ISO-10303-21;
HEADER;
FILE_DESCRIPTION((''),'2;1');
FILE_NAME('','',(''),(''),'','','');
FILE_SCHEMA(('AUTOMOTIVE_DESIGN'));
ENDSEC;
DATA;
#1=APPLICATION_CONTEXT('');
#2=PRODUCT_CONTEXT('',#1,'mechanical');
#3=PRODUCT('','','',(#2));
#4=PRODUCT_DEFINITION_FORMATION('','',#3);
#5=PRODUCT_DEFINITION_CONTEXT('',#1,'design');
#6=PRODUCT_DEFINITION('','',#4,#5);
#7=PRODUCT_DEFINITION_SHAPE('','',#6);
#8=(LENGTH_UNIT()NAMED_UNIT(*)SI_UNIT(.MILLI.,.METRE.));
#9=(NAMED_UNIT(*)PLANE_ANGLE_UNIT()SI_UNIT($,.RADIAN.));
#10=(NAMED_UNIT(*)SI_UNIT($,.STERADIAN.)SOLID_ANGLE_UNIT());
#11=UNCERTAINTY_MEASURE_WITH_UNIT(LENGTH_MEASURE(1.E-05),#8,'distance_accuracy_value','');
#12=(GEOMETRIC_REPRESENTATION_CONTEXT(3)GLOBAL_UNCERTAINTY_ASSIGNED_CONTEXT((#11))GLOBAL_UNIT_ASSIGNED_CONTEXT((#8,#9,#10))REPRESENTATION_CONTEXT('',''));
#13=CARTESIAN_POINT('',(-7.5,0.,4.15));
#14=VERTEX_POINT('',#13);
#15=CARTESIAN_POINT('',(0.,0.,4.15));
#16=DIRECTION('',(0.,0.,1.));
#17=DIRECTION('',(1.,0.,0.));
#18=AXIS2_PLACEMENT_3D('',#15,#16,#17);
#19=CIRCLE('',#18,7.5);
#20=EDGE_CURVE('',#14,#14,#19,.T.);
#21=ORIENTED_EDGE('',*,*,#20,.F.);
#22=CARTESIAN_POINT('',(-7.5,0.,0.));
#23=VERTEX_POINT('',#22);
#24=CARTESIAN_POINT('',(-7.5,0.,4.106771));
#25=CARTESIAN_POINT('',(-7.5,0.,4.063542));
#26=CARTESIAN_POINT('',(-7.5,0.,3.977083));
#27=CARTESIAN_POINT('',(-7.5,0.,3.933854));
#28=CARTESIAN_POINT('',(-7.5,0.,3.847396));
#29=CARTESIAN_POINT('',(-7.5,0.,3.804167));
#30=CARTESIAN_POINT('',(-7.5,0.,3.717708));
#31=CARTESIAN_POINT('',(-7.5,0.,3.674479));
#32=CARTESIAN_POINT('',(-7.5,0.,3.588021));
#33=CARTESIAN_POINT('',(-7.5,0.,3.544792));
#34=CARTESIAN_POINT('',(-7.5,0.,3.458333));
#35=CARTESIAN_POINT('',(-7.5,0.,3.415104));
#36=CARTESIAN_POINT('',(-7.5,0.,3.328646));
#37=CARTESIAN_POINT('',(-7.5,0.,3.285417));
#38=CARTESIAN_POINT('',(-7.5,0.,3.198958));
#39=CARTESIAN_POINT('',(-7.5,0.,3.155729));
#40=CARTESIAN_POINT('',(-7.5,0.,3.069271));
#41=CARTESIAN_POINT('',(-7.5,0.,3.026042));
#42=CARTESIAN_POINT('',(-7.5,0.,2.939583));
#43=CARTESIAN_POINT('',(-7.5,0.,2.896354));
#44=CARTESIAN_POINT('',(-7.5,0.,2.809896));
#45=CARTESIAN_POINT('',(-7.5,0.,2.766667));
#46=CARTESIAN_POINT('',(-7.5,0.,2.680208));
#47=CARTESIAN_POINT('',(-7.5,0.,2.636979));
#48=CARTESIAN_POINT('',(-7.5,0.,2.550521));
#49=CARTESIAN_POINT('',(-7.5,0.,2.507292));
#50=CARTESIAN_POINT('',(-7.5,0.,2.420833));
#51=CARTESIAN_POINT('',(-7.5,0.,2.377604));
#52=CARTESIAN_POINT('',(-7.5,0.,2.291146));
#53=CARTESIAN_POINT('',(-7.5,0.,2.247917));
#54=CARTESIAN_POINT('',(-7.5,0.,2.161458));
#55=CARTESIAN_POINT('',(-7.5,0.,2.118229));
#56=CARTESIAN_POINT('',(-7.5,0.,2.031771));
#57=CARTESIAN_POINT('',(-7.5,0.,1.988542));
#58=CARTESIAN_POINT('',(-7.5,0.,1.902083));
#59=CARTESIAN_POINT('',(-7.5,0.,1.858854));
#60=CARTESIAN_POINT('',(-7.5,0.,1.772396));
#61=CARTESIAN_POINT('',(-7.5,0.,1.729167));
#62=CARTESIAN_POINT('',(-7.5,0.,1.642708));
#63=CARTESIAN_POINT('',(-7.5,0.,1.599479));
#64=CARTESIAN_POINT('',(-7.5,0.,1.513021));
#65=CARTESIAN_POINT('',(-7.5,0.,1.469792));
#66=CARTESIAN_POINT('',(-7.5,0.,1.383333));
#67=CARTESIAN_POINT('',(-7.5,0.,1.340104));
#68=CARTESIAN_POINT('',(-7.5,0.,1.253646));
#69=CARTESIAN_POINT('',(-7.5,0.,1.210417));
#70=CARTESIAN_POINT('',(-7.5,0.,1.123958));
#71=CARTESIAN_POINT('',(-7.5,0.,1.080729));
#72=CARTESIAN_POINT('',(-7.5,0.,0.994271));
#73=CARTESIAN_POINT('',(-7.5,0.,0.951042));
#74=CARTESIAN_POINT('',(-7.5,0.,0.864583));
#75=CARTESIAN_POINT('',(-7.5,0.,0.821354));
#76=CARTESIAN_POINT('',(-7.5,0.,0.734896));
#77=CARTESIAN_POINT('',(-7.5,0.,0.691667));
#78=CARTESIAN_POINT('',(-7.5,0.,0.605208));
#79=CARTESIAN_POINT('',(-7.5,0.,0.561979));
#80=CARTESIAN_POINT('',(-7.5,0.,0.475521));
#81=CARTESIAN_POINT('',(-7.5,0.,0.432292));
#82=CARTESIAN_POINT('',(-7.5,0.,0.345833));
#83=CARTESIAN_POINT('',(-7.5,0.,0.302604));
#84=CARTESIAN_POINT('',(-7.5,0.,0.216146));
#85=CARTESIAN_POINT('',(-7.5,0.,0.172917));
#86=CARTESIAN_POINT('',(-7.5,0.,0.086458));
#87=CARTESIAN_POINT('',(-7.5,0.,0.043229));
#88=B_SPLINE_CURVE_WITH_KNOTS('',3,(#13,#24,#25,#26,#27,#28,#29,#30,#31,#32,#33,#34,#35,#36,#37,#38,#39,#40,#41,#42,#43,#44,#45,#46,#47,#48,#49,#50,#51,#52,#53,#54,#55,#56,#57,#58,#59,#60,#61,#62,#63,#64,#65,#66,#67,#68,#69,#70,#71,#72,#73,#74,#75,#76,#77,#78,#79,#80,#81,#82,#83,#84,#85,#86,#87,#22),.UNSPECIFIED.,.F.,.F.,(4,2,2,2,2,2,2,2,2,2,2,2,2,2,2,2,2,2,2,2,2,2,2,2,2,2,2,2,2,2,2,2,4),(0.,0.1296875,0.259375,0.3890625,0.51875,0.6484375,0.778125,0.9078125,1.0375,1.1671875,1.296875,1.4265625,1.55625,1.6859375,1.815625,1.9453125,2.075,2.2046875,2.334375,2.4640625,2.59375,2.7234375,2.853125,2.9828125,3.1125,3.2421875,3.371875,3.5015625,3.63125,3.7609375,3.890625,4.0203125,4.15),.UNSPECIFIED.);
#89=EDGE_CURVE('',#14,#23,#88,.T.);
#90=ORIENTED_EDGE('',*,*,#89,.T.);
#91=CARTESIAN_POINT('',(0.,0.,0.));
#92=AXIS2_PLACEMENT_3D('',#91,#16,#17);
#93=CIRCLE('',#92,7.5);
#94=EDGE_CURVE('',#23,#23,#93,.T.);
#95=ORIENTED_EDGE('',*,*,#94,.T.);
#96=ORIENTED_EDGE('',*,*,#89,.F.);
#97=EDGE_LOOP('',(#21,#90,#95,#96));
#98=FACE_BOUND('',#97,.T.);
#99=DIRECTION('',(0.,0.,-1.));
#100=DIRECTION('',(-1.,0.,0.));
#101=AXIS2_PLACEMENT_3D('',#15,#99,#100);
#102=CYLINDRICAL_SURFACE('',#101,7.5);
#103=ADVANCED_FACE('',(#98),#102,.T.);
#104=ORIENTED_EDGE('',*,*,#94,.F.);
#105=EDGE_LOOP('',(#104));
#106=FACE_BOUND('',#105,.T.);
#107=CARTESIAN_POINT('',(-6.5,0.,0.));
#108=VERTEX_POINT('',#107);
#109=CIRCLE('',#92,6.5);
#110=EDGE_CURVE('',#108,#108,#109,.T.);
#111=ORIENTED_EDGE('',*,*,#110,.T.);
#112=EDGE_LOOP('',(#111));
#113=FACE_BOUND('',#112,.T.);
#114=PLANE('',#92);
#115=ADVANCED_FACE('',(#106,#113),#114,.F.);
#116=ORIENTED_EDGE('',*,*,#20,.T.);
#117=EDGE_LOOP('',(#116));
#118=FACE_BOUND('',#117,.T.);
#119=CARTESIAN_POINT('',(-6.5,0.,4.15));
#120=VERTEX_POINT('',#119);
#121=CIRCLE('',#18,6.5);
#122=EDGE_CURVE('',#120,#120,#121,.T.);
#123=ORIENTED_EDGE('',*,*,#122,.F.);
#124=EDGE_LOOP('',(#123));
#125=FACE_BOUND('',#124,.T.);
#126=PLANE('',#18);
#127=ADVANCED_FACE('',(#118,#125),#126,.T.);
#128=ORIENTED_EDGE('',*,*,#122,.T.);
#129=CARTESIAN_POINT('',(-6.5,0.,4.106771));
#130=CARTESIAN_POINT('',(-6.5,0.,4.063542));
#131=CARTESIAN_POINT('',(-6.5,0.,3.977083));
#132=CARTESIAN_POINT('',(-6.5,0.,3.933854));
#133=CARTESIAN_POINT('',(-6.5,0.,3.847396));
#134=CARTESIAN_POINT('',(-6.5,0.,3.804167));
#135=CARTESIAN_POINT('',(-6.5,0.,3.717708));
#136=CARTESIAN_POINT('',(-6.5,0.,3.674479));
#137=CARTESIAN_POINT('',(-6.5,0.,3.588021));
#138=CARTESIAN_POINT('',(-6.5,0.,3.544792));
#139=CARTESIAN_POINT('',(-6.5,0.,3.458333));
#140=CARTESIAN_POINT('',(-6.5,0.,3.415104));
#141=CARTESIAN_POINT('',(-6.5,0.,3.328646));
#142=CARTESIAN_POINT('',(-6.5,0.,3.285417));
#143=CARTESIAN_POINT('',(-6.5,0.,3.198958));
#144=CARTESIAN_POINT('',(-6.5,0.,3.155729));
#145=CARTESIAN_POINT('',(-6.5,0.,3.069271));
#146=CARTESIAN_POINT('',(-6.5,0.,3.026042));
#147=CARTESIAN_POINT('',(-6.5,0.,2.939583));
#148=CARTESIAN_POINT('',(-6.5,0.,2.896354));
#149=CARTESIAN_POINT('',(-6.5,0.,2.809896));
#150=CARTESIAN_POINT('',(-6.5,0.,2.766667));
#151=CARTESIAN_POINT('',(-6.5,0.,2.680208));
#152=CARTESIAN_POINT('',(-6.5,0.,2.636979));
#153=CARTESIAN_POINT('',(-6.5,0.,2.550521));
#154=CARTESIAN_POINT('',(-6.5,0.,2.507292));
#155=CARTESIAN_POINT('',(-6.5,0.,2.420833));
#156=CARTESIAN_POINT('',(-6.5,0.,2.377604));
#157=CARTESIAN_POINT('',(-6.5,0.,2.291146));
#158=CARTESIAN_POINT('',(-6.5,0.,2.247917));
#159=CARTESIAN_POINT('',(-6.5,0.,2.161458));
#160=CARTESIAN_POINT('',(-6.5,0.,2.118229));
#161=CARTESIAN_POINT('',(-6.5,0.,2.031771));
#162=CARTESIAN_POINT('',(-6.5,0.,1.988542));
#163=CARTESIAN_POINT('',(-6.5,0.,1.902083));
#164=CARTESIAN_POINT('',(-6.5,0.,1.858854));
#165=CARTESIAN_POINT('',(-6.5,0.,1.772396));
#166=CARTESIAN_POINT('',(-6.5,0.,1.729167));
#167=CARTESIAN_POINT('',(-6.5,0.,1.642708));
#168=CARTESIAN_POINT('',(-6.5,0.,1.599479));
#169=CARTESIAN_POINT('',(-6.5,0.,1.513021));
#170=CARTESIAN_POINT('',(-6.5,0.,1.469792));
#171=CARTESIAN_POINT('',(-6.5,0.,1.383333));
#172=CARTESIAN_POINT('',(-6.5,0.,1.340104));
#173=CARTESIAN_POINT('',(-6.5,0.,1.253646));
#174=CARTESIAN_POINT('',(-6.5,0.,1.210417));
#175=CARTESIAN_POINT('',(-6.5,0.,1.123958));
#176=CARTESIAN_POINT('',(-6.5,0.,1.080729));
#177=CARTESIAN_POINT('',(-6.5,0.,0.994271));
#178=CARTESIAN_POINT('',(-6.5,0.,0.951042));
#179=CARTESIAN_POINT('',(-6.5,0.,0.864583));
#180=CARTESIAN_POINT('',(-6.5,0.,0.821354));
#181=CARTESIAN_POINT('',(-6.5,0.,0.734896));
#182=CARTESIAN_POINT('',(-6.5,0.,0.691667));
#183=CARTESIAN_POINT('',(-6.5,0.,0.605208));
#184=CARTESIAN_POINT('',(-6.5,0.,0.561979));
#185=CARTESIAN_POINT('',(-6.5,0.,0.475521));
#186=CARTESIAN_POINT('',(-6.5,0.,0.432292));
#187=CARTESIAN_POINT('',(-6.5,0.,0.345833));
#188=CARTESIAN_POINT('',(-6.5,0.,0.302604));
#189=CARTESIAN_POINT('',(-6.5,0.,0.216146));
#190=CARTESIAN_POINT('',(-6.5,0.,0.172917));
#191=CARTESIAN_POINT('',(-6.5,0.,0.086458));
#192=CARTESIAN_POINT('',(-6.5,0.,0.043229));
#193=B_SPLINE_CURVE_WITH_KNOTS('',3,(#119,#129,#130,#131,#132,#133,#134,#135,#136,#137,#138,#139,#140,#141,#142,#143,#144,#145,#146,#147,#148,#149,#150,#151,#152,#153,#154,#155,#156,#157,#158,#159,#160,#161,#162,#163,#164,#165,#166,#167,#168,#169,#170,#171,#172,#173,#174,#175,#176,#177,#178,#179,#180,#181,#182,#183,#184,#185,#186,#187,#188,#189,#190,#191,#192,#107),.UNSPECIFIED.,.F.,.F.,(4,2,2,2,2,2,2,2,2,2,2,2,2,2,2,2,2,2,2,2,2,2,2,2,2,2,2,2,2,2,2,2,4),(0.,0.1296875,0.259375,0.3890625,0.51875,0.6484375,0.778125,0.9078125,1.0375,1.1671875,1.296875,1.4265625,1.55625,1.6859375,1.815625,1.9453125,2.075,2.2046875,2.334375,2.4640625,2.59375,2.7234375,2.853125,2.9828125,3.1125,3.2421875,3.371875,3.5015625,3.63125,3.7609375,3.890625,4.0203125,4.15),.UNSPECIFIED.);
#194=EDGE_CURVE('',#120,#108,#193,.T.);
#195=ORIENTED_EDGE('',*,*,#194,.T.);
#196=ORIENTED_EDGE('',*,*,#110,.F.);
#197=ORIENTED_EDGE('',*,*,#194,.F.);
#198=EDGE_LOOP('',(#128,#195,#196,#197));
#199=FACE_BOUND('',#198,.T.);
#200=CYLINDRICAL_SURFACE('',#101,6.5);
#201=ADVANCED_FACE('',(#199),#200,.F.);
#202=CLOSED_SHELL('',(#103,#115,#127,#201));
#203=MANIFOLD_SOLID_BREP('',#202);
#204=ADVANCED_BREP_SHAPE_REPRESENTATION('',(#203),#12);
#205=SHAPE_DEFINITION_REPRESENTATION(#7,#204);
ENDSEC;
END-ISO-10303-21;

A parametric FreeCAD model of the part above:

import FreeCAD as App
import Part
import Sketcher

V = App.Vector
Q = App.Units.Quantity

doc = App.newDocument("Part")
params = doc.addObject("Spreadsheet::Sheet", "Params")
for row, (alias, value) in enumerate([
    ("sketch1_diameter", "15 mm"),
    ("sketch1_diameter2", "13 mm"),
    ("pad1_length", "4.15 mm"),
], start=1):
    params.set(f"A{row}", alias)
    params.set(f"B{row}", "=" + value)
    params.setAlias(f"B{row}", alias)

body = doc.addObject("PartDesign::Body", "Body")

# Sketch on XY plane
sketch1 = body.newObject("Sketcher::SketchObject", "Sketch")
sketch1.AttachmentSupport = (doc.getObject("XY_Plane"), [""])
sketch1.MapMode = "FlatFace"
sketch1.addGeometry([
    Part.Circle(V(0, 0, 0), V(0, 0, 1), 8),
    Part.Circle(V(0, 0, 0), V(0, 0, 1), 6),
], False)
sketch1.addConstraint([
    Sketcher.Constraint("Coincident", 0, 3, -1, 1),
    Sketcher.Constraint("Coincident", 1, 3, -1, 1),
    Sketcher.Constraint("Diameter", 0, Q("15 mm")),
    Sketcher.Constraint("Diameter", 1, Q("13 mm")),
])
sketch1.setExpression("Constraints[2]", "Params.sketch1_diameter")
sketch1.setExpression("Constraints[3]", "Params.sketch1_diameter2")
pad1 = body.newObject("PartDesign::Pad", "Pad")
pad1.Profile = sketch1
pad1.setExpression("Length", "Params.pad1_length")

doc.recompute()
